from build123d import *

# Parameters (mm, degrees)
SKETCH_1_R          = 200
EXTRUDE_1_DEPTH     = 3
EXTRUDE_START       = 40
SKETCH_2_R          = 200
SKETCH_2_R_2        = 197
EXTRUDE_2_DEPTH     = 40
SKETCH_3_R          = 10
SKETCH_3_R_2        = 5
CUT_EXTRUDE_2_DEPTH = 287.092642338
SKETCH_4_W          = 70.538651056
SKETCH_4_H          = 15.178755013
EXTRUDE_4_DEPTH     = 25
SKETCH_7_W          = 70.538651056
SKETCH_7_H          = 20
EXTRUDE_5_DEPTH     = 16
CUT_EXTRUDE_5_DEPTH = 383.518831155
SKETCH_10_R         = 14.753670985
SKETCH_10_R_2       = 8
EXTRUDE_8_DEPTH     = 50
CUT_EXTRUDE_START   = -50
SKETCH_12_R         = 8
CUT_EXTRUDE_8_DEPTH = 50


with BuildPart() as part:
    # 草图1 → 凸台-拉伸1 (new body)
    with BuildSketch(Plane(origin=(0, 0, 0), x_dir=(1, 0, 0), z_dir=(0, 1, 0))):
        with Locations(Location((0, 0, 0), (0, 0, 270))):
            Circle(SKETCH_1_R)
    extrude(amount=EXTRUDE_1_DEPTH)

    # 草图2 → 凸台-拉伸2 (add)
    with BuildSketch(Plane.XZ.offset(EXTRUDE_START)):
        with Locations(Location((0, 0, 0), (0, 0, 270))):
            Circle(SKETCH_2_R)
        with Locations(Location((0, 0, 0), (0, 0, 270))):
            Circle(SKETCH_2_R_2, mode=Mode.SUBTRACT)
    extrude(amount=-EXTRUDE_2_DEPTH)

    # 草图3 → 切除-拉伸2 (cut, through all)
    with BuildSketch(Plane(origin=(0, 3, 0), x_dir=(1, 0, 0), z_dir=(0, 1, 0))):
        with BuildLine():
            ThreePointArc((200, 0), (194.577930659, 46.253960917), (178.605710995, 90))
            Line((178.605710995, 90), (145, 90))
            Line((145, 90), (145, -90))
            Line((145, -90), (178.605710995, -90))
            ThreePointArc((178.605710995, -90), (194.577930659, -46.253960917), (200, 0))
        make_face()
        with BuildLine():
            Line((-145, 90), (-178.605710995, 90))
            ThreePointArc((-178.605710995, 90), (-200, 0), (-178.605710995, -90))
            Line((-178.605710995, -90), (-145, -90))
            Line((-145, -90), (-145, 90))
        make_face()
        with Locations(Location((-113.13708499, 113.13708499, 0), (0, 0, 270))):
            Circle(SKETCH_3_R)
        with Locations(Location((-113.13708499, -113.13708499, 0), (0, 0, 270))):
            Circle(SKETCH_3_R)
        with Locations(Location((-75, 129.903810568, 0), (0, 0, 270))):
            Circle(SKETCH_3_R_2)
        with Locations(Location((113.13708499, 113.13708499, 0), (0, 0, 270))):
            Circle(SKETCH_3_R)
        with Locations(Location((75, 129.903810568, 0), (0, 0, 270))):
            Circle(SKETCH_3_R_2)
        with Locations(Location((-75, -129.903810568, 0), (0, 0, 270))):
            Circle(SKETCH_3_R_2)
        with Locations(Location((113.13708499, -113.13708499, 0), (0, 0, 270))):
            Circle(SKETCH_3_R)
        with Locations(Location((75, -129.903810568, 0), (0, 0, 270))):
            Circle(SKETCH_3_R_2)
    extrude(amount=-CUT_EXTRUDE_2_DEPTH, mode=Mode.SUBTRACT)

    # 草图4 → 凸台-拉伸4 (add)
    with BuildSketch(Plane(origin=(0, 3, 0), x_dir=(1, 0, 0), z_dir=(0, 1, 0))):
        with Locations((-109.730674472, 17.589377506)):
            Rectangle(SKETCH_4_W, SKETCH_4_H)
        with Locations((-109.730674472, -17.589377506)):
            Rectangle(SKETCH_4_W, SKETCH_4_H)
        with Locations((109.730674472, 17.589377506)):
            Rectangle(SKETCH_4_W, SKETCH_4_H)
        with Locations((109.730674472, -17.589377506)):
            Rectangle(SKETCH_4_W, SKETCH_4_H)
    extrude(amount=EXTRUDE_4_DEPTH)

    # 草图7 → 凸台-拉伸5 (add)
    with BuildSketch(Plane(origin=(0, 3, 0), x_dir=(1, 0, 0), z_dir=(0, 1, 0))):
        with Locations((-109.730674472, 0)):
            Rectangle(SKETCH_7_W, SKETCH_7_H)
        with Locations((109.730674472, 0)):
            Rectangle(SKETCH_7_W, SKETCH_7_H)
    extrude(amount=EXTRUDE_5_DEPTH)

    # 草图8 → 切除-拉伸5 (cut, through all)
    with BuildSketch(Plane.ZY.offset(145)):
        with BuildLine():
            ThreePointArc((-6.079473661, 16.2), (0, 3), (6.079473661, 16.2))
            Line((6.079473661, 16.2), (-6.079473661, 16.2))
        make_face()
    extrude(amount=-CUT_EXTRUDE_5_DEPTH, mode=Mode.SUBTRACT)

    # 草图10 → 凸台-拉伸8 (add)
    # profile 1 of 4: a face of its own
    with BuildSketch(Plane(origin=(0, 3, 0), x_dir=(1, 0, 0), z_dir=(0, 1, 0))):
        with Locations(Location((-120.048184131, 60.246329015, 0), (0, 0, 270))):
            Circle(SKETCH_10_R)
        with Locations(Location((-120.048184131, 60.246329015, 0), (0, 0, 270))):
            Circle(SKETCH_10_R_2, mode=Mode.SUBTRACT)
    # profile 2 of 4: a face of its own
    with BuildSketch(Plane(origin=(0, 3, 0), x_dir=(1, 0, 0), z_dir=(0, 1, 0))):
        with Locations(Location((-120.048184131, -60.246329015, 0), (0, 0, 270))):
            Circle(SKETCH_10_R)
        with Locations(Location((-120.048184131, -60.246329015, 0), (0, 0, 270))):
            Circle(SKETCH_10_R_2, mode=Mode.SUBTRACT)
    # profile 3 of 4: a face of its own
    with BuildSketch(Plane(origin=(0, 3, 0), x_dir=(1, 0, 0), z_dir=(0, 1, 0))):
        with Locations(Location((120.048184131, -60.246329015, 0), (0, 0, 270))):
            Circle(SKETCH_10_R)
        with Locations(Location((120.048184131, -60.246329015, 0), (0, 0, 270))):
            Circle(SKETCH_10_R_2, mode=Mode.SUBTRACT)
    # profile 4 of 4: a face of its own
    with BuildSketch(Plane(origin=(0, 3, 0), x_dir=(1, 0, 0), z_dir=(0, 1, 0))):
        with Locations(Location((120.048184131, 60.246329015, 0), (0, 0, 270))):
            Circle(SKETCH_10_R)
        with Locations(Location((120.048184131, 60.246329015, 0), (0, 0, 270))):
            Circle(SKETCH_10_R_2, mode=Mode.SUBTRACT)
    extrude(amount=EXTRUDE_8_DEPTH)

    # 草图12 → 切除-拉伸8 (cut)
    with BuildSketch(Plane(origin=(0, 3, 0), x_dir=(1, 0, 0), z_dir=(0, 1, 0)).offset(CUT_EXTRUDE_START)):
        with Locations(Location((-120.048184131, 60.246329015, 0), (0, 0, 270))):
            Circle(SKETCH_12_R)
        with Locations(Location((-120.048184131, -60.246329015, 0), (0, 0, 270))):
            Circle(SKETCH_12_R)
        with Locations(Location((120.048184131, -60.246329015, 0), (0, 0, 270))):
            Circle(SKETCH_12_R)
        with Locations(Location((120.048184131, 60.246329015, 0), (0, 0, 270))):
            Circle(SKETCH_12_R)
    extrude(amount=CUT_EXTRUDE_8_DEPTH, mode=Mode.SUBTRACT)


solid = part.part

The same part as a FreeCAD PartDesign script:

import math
import FreeCAD as App
import Part
import Sketcher
Q = App.Units.Quantity

doc = App.newDocument("Part")
params = doc.addObject("Spreadsheet::Sheet", "Params")
for row, (alias, value) in enumerate([
    ("sketch1_diameter", "400 mm"),
    ("pad1_length", "3 mm"),
    ("sketch2_diameter", "400 mm"),
    ("sketch2_diameter2", "394 mm"),
    ("pad2_length", "40 mm"),
    ("sketch3_diameter", "20 mm"),
    ("sketch3_diameter2", "10 mm"),
    ("sketch3_radius", "200 mm"),
    ("sketch3_height", "180 mm"),
    ("pad3_length", "25 mm"),
    ("sketch5_height", "20 mm"),
    ("pad4_length", "16 mm"),
    ("sketch6_radius", "8 mm"),
    ("sketch7_diameter", "16 mm"),
    ("pad5_length", "50 mm"),
    ("sketch8_diameter", "16 mm"),
    ("pocket3_length", "50 mm"),
], start=1):
    params.set(f"A{row}", alias)
    params.set(f"B{row}", "=" + value)
    params.setAlias(f"B{row}", alias)

body = doc.addObject("PartDesign::Body", "Body")

# Sketch on XZ plane
sketch1 = body.newObject("Sketcher::SketchObject", "Sketch")
sketch1.AttachmentSupport = (doc.getObject("XZ_Plane"), [""])
sketch1.MapMode = "FlatFace"
sketch1.addGeometry(Part.Circle(App.Vector(0, 0, 0), App.Vector(0, 0, 1), 200), False)
sketch1.addConstraint([
    Sketcher.Constraint("Coincident", 0, 3, -1, 1),
    Sketcher.Constraint("Diameter", 0, Q("400 mm")),
])
sketch1.setExpression("Constraints[1]", "Params.sketch1_diameter")
pad1 = body.newObject("PartDesign::Pad", "Pad")
pad1.Profile = sketch1
pad1.setExpression("Length", "Params.pad1_length")
pad1.Reversed = True

# Sketch on XZ plane
sketch2 = body.newObject("Sketcher::SketchObject", "Sketch001")
sketch2.AttachmentSupport = (doc.getObject("XZ_Plane"), [""])
sketch2.MapMode = "FlatFace"
sketch2.AttachmentOffset = App.Placement(App.Vector(0, 0, 40), App.Rotation())
sketch2.addGeometry([
    Part.Circle(App.Vector(0, 0, 0), App.Vector(0, 0, 1), 200),
    Part.Circle(App.Vector(0, 0, 0), App.Vector(0, 0, 1), 197),
], False)
sketch2.addConstraint([
    Sketcher.Constraint("Coincident", 0, 3, -1, 1),
    Sketcher.Constraint("Coincident", 1, 3, -1, 1),
    Sketcher.Constraint("Diameter", 0, Q("400 mm")),
    Sketcher.Constraint("Diameter", 1, Q("394 mm")),
])
sketch2.setExpression("Constraints[2]", "Params.sketch2_diameter")
sketch2.setExpression("Constraints[3]", "Params.sketch2_diameter2")
pad2 = body.newObject("PartDesign::Pad", "Pad001")
pad2.Profile = sketch2
pad2.setExpression("Length", "Params.pad2_length")
pad2.Reversed = True

# Sketch on XZ plane
sketch3 = body.newObject("Sketcher::SketchObject", "Sketch002")
sketch3.AttachmentSupport = (doc.getObject("XZ_Plane"), [""])
sketch3.MapMode = "FlatFace"
sketch3.AttachmentOffset = App.Placement(App.Vector(0, 0, -3), App.Rotation())
sketch3.addGeometry([
    Part.ArcOfCircle(Part.Circle(App.Vector(0, 0, 0), App.Vector(0, 0, 1), 200), math.radians(-27), math.radians(0)),  # 0
    Part.LineSegment(App.Vector(179, -90, 0), App.Vector(145, -90, 0)),  # 1
    Part.LineSegment(App.Vector(145, -90, 0), App.Vector(145, 90, 0)),  # 2
    Part.LineSegment(App.Vector(145, 90, 0), App.Vector(179, 90, 0)),  # 3
    Part.ArcOfCircle(Part.Circle(App.Vector(0, 0, 0), App.Vector(0, 0, 1), 200), math.radians(0), math.radians(27)),  # 4
    Part.LineSegment(App.Vector(-145, -90, 0), App.Vector(-179, -90, 0)),  # 5
    Part.ArcOfCircle(Part.Circle(App.Vector(0, 0, 0), App.Vector(0, 0, 1), 200), math.radians(153), math.radians(207)),  # 6
    Part.LineSegment(App.Vector(-179, 90, 0), App.Vector(-145, 90, 0)),  # 7
    Part.LineSegment(App.Vector(-145, 90, 0), App.Vector(-145, -90, 0)),  # 8
    Part.Circle(App.Vector(-113, -113, 0), App.Vector(0, 0, 1), 10),  # 9
    Part.Circle(App.Vector(-113, 113, 0), App.Vector(0, 0, 1), 10),  # 10
    Part.Circle(App.Vector(-75, -130, 0), App.Vector(0, 0, 1), 5),  # 11
    Part.Circle(App.Vector(113, -113, 0), App.Vector(0, 0, 1), 10),  # 12
    Part.Circle(App.Vector(75, -130, 0), App.Vector(0, 0, 1), 5),  # 13
    Part.Circle(App.Vector(-75, 130, 0), App.Vector(0, 0, 1), 5),  # 14
    Part.Circle(App.Vector(113, 113, 0), App.Vector(0, 0, 1), 10),  # 15
    Part.Circle(App.Vector(75, 130, 0), App.Vector(0, 0, 1), 5),  # 16
], False)
sketch3.addConstraint([
    Sketcher.Constraint("Coincident", 0, 1, 1, 1),
    Sketcher.Constraint("Coincident", 1, 2, 2, 1),
    Sketcher.Constraint("Coincident", 2, 2, 3, 1),
    Sketcher.Constraint("Coincident", 3, 2, 4, 2),
    Sketcher.Constraint("Tangent", 4, 1, 0, 2),
    Sketcher.Constraint("Coincident", 5, 2, 6, 2),
    Sketcher.Constraint("Coincident", 6, 1, 7, 1),
    Sketcher.Constraint("Coincident", 7, 2, 8, 1),
    Sketcher.Constraint("Coincident", 8, 2, 5, 1),
    Sketcher.Constraint("Horizontal", 1),
    Sketcher.Constraint("Vertical", 2),
    Sketcher.Constraint("Horizontal", 3),
    Sketcher.Constraint("Horizontal", 5),
    Sketcher.Constraint("Horizontal", 7),
    Sketcher.Constraint("Vertical", 8),
    Sketcher.Constraint("Coincident", 0, 3, -1, 1),
    Sketcher.Constraint("Coincident", 6, 3, -1, 1),
    Sketcher.Constraint("Equal", 0, 4),
    Sketcher.Constraint("Equal", 4, 6),
    Sketcher.Constraint("Equal", 9, 10),
    Sketcher.Constraint("Equal", 10, 12),
    Sketcher.Constraint("Equal", 11, 13),
    Sketcher.Constraint("Equal", 13, 14),
    Sketcher.Constraint("Equal", 12, 15),
    Sketcher.Constraint("Equal", 14, 16),
    Sketcher.Constraint("Symmetric", 10, 3, 12, 3, -1, 1),
    Sketcher.Constraint("Symmetric", 13, 3, 14, 3, -1, 1),
    Sketcher.Constraint("Symmetric", 9, 3, 15, 3, -1, 1),
    Sketcher.Constraint("Symmetric", 11, 3, 16, 3, -1, 1),
    Sketcher.Constraint("Symmetric", 1, 2, 7, 2, -1, 1),
    Sketcher.Constraint("Symmetric", 9, 3, 12, 3, -2),
    Sketcher.Constraint("Symmetric", 11, 3, 13, 3, -2),
    Sketcher.Constraint("PointOnObject", 4, 1, -1),
    Sketcher.Constraint("Horizontal", 1, 2, 5, 2),
    Sketcher.Constraint("Horizontal", 3, 2, 6, 1),
    Sketcher.Constraint("Diameter", 9, Q("20 mm")),
    Sketcher.Constraint("Diameter", 11, Q("10 mm")),
    Sketcher.Constraint("Radius", 0, Q("200 mm")),
    Sketcher.Constraint("DistanceY", 2, 1, 2, 2, Q("180 mm")),
    Sketcher.Constraint("DistanceX", 11, 3, -1, 1, Q("75 mm")),
    Sketcher.Constraint("DistanceX", -1, 1, 1, 2, Q("145 mm")),
    Sketcher.Constraint("DistanceY", 11, 3, -1, 1, Q("129.903811 mm")),
    Sketcher.Constraint("DistanceY", 9, 3, 10, 3, Q("226.27417 mm")),
    Sketcher.Constraint("DistanceX", 9, 3, 12, 3, Q("226.27417 mm")),
])
sketch3.setExpression("Constraints[35]", "Params.sketch3_diameter")
sketch3.setExpression("Constraints[36]", "Params.sketch3_diameter2")
sketch3.setExpression("Constraints[37]", "Params.sketch3_radius")
sketch3.setExpression("Constraints[38]", "Params.sketch3_height")
pocket1 = body.newObject("PartDesign::Pocket", "Pocket")
pocket1.Profile = sketch3
pocket1.Type = "ThroughAll"
pocket1.Reversed = True

# Sketch on XZ plane
sketch4 = body.newObject("Sketcher::SketchObject", "Sketch003")
sketch4.AttachmentSupport = (doc.getObject("XZ_Plane"), [""])
sketch4.MapMode = "FlatFace"
sketch4.AttachmentOffset = App.Placement(App.Vector(0, 0, -3), App.Rotation())
sketch4.addGeometry([
    Part.LineSegment(App.Vector(-145, -25, 0), App.Vector(-145, -10, 0)),  # 0
    Part.LineSegment(App.Vector(-145, -10, 0), App.Vector(-74, -10, 0)),  # 1
    Part.LineSegment(App.Vector(-74, -10, 0), App.Vector(-74, -25, 0)),  # 2
    Part.LineSegment(App.Vector(-74, -25, 0), App.Vector(-145, -25, 0)),  # 3
    Part.LineSegment(App.Vector(-145, 10, 0), App.Vector(-145, 25, 0)),  # 4
    Part.LineSegment(App.Vector(-145, 25, 0), App.Vector(-74, 25, 0)),  # 5
    Part.LineSegment(App.Vector(-74, 25, 0), App.Vector(-74, 10, 0)),  # 6
    Part.LineSegment(App.Vector(-74, 10, 0), App.Vector(-145, 10, 0)),  # 7
    Part.LineSegment(App.Vector(74, -25, 0), App.Vector(74, -10, 0)),  # 8
    Part.LineSegment(App.Vector(74, -10, 0), App.Vector(145, -10, 0)),  # 9
    Part.LineSegment(App.Vector(145, -10, 0), App.Vector(145, -25, 0)),  # 10
    Part.LineSegment(App.Vector(145, -25, 0), App.Vector(74, -25, 0)),  # 11
    Part.LineSegment(App.Vector(74, 10, 0), App.Vector(74, 25, 0)),  # 12
    Part.LineSegment(App.Vector(74, 25, 0), App.Vector(145, 25, 0)),  # 13
    Part.LineSegment(App.Vector(145, 25, 0), App.Vector(145, 10, 0)),  # 14
    Part.LineSegment(App.Vector(145, 10, 0), App.Vector(74, 10, 0)),  # 15
], False)
sketch4.addConstraint([
    Sketcher.Constraint("Coincident", 0, 2, 1, 1),
    Sketcher.Constraint("Coincident", 1, 2, 2, 1),
    Sketcher.Constraint("Coincident", 2, 2, 3, 1),
    Sketcher.Constraint("Coincident", 3, 2, 0, 1),
    Sketcher.Constraint("Coincident", 4, 2, 5, 1),
    Sketcher.Constraint("Coincident", 5, 2, 6, 1),
    Sketcher.Constraint("Coincident", 6, 2, 7, 1),
    Sketcher.Constraint("Coincident", 7, 2, 4, 1),
    Sketcher.Constraint("Coincident", 8, 2, 9, 1),
    Sketcher.Constraint("Coincident", 9, 2, 10, 1),
    Sketcher.Constraint("Coincident", 10, 2, 11, 1),
    Sketcher.Constraint("Coincident", 11, 2, 8, 1),
    Sketcher.Constraint("Coincident", 12, 2, 13, 1),
    Sketcher.Constraint("Coincident", 13, 2, 14, 1),
    Sketcher.Constraint("Coincident", 14, 2, 15, 1),
    Sketcher.Constraint("Coincident", 15, 2, 12, 1),
    Sketcher.Constraint("Vertical", 0),
    Sketcher.Constraint("Horizontal", 1),
    Sketcher.Constraint("Vertical", 2),
    Sketcher.Constraint("Horizontal", 3),
    Sketcher.Constraint("Vertical", 4),
    Sketcher.Constraint("Horizontal", 5),
    Sketcher.Constraint("Vertical", 6),
    Sketcher.Constraint("Horizontal", 7),
    Sketcher.Constraint("Vertical", 8),
    Sketcher.Constraint("Horizontal", 9),
    Sketcher.Constraint("Vertical", 10),
    Sketcher.Constraint("Horizontal", 11),
    Sketcher.Constraint("Vertical", 12),
    Sketcher.Constraint("Horizontal", 13),
    Sketcher.Constraint("Vertical", 14),
    Sketcher.Constraint("Horizontal", 15),
    Sketcher.Constraint("Symmetric", 6, 2, 8, 2, -1, 1),
    Sketcher.Constraint("Symmetric", 4, 2, 10, 2, -1, 1),
    Sketcher.Constraint("Symmetric", 2, 2, 12, 2, -1, 1),
    Sketcher.Constraint("Symmetric", 0, 2, 14, 2, -1, 1),
    Sketcher.Constraint("Symmetric", 1, 2, 8, 2, -2),
    Sketcher.Constraint("Symmetric", 3, 2, 10, 2, -2),
    Sketcher.Constraint("DistanceX", 0, 2, -1, 1, Q("145 mm")),
    Sketcher.Constraint("DistanceY", 0, 2, -1, 1, Q("10 mm")),
    Sketcher.Constraint("DistanceX", 1, 1, 1, 2, Q("70.538651 mm")),
    Sketcher.Constraint("DistanceY", 0, 1, 0, 2, Q("15.178755 mm")),
])
pad3 = body.newObject("PartDesign::Pad", "Pad002")
pad3.Profile = sketch4
pad3.setExpression("Length", "Params.pad3_length")
pad3.Reversed = True

# Sketch on XZ plane
sketch5 = body.newObject("Sketcher::SketchObject", "Sketch004")
sketch5.AttachmentSupport = (doc.getObject("XZ_Plane"), [""])
sketch5.MapMode = "FlatFace"
sketch5.AttachmentOffset = App.Placement(App.Vector(0, 0, -3), App.Rotation())
sketch5.addGeometry([
    Part.LineSegment(App.Vector(-145, -10, 0), App.Vector(-145, 10, 0)),  # 0
    Part.LineSegment(App.Vector(-145, 10, 0), App.Vector(-74, 10, 0)),  # 1
    Part.LineSegment(App.Vector(-74, 10, 0), App.Vector(-74, -10, 0)),  # 2
    Part.LineSegment(App.Vector(-74, -10, 0), App.Vector(-145, -10, 0)),  # 3
    Part.LineSegment(App.Vector(74, -10, 0), App.Vector(74, 10, 0)),  # 4
    Part.LineSegment(App.Vector(74, 10, 0), App.Vector(145, 10, 0)),  # 5
    Part.LineSegment(App.Vector(145, 10, 0), App.Vector(145, -10, 0)),  # 6
    Part.LineSegment(App.Vector(145, -10, 0), App.Vector(74, -10, 0)),  # 7
], False)
sketch5.addConstraint([
    Sketcher.Constraint("Coincident", 0, 2, 1, 1),
    Sketcher.Constraint("Coincident", 1, 2, 2, 1),
    Sketcher.Constraint("Coincident", 2, 2, 3, 1),
    Sketcher.Constraint("Coincident", 3, 2, 0, 1),
    Sketcher.Constraint("Coincident", 4, 2, 5, 1),
    Sketcher.Constraint("Coincident", 5, 2, 6, 1),
    Sketcher.Constraint("Coincident", 6, 2, 7, 1),
    Sketcher.Constraint("Coincident", 7, 2, 4, 1),
    Sketcher.Constraint("Vertical", 0),
    Sketcher.Constraint("Horizontal", 1),
    Sketcher.Constraint("Vertical", 2),
    Sketcher.Constraint("Horizontal", 3),
    Sketcher.Constraint("Vertical", 4),
    Sketcher.Constraint("Horizontal", 5),
    Sketcher.Constraint("Vertical", 6),
    Sketcher.Constraint("Horizontal", 7),
    Sketcher.Constraint("Symmetric", 2, 2, 4, 2, -1, 1),
    Sketcher.Constraint("Symmetric", 0, 2, 6, 2, -1, 1),
    Sketcher.Constraint("Horizontal", 1, 2, 4, 2),
    Sketcher.Constraint("DistanceY", 0, 1, 0, 2, Q("20 mm")),
    Sketcher.Constraint("DistanceX", 0, 2, -1, 1, Q("145 mm")),
    Sketcher.Constraint("DistanceX", 1, 1, 1, 2, Q("70.538651 mm")),
])
sketch5.setExpression("Constraints[19]", "Params.sketch5_height")
pad4 = body.newObject("PartDesign::Pad", "Pad003")
pad4.Profile = sketch5
pad4.setExpression("Length", "Params.pad4_length")
pad4.Reversed = True

# Sketch on YZ plane
sketch6 = body.newObject("Sketcher::SketchObject", "Sketch005")
sketch6.AttachmentSupport = (doc.getObject("YZ_Plane"), [""])
sketch6.MapMode = "FlatFace"
sketch6.AttachmentOffset = App.Placement(App.Vector(0, 0, -145), App.Rotation())
sketch6.addGeometry([
    Part.ArcOfCircle(Part.Circle(App.Vector(11, 0, 0), App.Vector(0, 0, 1), 8), math.radians(49), math.radians(311)),
    Part.LineSegment(App.Vector(16, 6, 0), App.Vector(16, -6, 0)),
], False)
sketch6.addConstraint([
    Sketcher.Constraint("Coincident", 0, 1, 1, 1),
    Sketcher.Constraint("Coincident", 1, 2, 0, 2),
    Sketcher.Constraint("Vertical", 1),
    Sketcher.Constraint("PointOnObject", 0, 3, -1),
    Sketcher.Constraint("Radius", 0, Q("8 mm")),
    Sketcher.Constraint("DistanceX", -1, 1, 0, 3, Q("11 mm")),
    Sketcher.Constraint("DistanceX", -1, 1, 0, 1, Q("16.2 mm")),
])
sketch6.setExpression("Constraints[4]", "Params.sketch6_radius")
pocket2 = body.newObject("PartDesign::Pocket", "Pocket001")
pocket2.Profile = sketch6
pocket2.Type = "ThroughAll"
pocket2.Reversed = True

# Sketch on XZ plane
sketch7 = body.newObject("Sketcher::SketchObject", "Sketch006")
sketch7.AttachmentSupport = (doc.getObject("XZ_Plane"), [""])
sketch7.MapMode = "FlatFace"
sketch7.AttachmentOffset = App.Placement(App.Vector(0, 0, -3), App.Rotation())
sketch7.addGeometry([
    Part.Circle(App.Vector(-120, -60, 0), App.Vector(0, 0, 1), 15),  # 0
    Part.Circle(App.Vector(-120, -60, 0), App.Vector(0, 0, 1), 8),  # 1
    Part.Circle(App.Vector(-120, 60, 0), App.Vector(0, 0, 1), 15),  # 2
    Part.Circle(App.Vector(-120, 60, 0), App.Vector(0, 0, 1), 8),  # 3
    Part.Circle(App.Vector(120, 60, 0), App.Vector(0, 0, 1), 15),  # 4
    Part.Circle(App.Vector(120, 60, 0), App.Vector(0, 0, 1), 8),  # 5
    Part.Circle(App.Vector(120, -60, 0), App.Vector(0, 0, 1), 15),  # 6
    Part.Circle(App.Vector(120, -60, 0), App.Vector(0, 0, 1), 8),  # 7
], False)
sketch7.addConstraint([
    Sketcher.Constraint("Coincident", 1, 3, 0, 3),
    Sketcher.Constraint("Coincident", 3, 3, 2, 3),
    Sketcher.Constraint("Coincident", 5, 3, 4, 3),
    Sketcher.Constraint("Coincident", 7, 3, 6, 3),
    Sketcher.Constraint("Equal", 0, 2),
    Sketcher.Constraint("Equal", 1, 3),
    Sketcher.Constraint("Equal", 2, 4),
    Sketcher.Constraint("Equal", 3, 5),
    Sketcher.Constraint("Equal", 4, 6),
    Sketcher.Constraint("Equal", 5, 7),
    Sketcher.Constraint("Symmetric", 0, 3, 4, 3, -1, 1),
    Sketcher.Constraint("Symmetric", 2, 3, 6, 3, -1, 1),
    Sketcher.Constraint("Symmetric", 2, 3, 4, 3, -2),
    Sketcher.Constraint("Diameter", 1, Q("16 mm")),
    Sketcher.Constraint("Diameter", 0, Q("29.507342 mm")),
    Sketcher.Constraint("DistanceY", 0, 3, -1, 1, Q("60.246329 mm")),
    Sketcher.Constraint("DistanceX", 2, 3, 4, 3, Q("240.096368 mm")),
])
sketch7.setExpression("Constraints[13]", "Params.sketch7_diameter")
pad5 = body.newObject("PartDesign::Pad", "Pad004")
pad5.Profile = sketch7
pad5.setExpression("Length", "Params.pad5_length")
pad5.Reversed = True

# Sketch on XZ plane
sketch8 = body.newObject("Sketcher::SketchObject", "Sketch007")
sketch8.AttachmentSupport = (doc.getObject("XZ_Plane"), [""])
sketch8.MapMode = "FlatFace"
sketch8.AttachmentOffset = App.Placement(App.Vector(0, 0, 47), App.Rotation())
sketch8.addGeometry([
    Part.Circle(App.Vector(-120, -60, 0), App.Vector(0, 0, 1), 8),
    Part.Circle(App.Vector(-120, 60, 0), App.Vector(0, 0, 1), 8),
    Part.Circle(App.Vector(120, 60, 0), App.Vector(0, 0, 1), 8),
    Part.Circle(App.Vector(120, -60, 0), App.Vector(0, 0, 1), 8),
], False)
sketch8.addConstraint([
    Sketcher.Constraint("Equal", 0, 1),
    Sketcher.Constraint("Equal", 1, 2),
    Sketcher.Constraint("Equal", 2, 3),
    Sketcher.Constraint("Symmetric", 0, 3, 2, 3, -1, 1),
    Sketcher.Constraint("Symmetric", 1, 3, 3, 3, -1, 1),
    Sketcher.Constraint("Symmetric", 1, 3, 2, 3, -2),
    Sketcher.Constraint("Diameter", 0, Q("16 mm")),
    Sketcher.Constraint("DistanceY", 0, 3, -1, 1, Q("60.246329 mm")),
    Sketcher.Constraint("DistanceX", 1, 3, 2, 3, Q("240.096368 mm")),
])
sketch8.setExpression("Constraints[6]", "Params.sketch8_diameter")
pocket3 = body.newObject("PartDesign::Pocket", "Pocket002")
pocket3.Profile = sketch8
pocket3.setExpression("Length", "Params.pocket3_length")

doc.recompute()
